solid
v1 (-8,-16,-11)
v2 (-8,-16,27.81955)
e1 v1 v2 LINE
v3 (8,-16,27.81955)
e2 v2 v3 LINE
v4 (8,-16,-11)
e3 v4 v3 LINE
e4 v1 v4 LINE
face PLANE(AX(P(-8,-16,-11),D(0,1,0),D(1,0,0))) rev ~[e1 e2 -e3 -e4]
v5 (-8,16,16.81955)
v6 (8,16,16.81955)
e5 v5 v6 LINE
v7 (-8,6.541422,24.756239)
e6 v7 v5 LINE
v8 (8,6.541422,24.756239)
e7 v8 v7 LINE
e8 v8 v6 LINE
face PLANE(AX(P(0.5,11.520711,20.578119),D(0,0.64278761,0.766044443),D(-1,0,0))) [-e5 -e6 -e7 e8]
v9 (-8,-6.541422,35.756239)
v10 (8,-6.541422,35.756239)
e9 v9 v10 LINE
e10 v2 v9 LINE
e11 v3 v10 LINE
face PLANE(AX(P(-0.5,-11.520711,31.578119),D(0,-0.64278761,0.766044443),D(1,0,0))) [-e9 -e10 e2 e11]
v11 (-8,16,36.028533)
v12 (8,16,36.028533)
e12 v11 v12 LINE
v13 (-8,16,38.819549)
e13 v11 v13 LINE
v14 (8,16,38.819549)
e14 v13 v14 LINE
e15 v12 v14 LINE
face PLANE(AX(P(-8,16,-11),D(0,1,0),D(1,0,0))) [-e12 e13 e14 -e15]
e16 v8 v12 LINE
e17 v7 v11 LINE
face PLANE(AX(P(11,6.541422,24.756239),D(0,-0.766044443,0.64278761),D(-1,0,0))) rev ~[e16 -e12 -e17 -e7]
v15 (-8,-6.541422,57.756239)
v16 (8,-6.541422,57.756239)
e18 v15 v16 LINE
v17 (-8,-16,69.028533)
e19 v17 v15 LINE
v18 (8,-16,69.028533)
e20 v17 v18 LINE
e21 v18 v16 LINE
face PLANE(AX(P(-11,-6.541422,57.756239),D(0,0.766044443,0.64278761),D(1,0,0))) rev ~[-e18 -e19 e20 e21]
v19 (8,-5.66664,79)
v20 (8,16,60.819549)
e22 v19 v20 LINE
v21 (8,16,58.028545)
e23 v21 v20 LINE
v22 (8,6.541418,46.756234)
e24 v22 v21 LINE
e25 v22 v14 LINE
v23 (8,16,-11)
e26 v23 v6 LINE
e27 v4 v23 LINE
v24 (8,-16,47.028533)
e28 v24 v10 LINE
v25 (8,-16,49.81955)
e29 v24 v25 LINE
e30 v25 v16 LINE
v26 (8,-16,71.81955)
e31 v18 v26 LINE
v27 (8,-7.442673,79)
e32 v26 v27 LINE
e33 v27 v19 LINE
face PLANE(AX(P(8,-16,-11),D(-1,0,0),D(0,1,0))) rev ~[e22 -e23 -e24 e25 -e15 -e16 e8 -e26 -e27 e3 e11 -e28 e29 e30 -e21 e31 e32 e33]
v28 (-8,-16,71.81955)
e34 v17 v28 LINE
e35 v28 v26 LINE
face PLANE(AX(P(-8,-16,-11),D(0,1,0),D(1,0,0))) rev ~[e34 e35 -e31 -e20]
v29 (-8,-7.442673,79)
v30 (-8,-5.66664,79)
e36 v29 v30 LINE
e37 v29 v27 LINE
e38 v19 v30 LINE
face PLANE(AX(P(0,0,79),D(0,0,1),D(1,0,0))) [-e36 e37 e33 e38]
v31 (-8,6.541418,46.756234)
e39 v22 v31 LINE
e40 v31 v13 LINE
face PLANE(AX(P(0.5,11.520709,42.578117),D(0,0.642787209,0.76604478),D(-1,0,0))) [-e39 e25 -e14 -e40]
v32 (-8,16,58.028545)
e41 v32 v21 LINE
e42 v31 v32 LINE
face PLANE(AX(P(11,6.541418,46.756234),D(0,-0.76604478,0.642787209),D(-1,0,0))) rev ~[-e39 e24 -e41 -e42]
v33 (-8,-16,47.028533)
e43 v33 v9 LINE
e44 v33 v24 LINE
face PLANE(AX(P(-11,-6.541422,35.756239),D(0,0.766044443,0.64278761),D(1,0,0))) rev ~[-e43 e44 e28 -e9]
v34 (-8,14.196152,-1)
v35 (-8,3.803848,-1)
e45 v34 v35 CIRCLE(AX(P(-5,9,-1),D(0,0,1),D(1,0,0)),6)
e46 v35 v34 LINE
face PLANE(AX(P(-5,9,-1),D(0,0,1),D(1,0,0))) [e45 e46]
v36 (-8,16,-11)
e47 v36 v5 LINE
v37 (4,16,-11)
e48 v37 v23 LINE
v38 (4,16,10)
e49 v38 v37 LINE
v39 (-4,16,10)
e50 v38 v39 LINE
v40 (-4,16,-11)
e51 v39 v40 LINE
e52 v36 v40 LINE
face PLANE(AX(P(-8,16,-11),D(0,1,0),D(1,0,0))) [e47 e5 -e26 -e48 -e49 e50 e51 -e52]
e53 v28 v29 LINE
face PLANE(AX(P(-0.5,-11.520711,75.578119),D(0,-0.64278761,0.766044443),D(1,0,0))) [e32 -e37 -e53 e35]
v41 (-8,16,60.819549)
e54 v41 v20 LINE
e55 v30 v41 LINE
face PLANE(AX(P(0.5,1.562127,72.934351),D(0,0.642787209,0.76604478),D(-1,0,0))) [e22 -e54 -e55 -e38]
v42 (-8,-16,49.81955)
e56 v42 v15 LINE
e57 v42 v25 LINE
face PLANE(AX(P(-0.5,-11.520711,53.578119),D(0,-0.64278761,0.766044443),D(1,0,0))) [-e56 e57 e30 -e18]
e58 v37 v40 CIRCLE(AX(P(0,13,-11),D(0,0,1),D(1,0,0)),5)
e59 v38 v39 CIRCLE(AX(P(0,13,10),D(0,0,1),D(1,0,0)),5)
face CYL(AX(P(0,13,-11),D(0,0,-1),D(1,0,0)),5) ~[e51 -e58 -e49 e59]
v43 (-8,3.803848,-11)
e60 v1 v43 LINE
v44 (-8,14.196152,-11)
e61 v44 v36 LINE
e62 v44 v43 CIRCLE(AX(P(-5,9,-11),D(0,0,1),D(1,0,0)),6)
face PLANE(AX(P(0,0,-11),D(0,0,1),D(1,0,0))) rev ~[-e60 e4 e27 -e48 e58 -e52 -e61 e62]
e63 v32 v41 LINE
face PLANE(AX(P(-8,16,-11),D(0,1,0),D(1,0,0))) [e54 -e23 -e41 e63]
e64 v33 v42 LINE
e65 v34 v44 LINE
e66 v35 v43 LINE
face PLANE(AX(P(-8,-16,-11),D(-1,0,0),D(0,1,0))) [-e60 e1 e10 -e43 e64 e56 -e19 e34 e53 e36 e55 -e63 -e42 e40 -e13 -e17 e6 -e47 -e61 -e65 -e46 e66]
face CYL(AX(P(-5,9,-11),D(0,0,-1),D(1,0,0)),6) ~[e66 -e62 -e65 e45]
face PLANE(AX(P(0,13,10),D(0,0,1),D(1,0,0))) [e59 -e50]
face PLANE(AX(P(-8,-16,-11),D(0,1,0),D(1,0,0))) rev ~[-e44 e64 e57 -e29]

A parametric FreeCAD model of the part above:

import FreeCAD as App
import Part
import Sketcher
from FreeCAD import Vector

doc = App.newDocument("Part")
body = doc.addObject("PartDesign::Body", "Body")

# Sketch on XY plane
sketch1 = doc.addObject("Sketcher::SketchObject", "Sketch")
body.addObject(sketch1)
sketch1.AttachmentSupport = (doc.XY_Plane, [""])
sketch1.MapMode = "FlatFace"
sketch1.AttachmentOffset = App.Placement(Vector(0, 0, -11), App.Rotation())
sketch1.addGeometry(Part.Circle(Vector(-5, 9, 0), Vector(0, 0, 1), 6), False)
sketch1.addConstraint(Sketcher.Constraint("Diameter", 0, 12.0))
sketch1.addConstraint(Sketcher.Constraint("DistanceX", 0, 3, -1, 1, 5.0))
sketch1.addConstraint(Sketcher.Constraint("DistanceY", -1, 1, 0, 3, 9.0))
pad1 = doc.addObject("PartDesign::Pad", "Pad")
body.addObject(pad1)
pad1.Profile = sketch1
pad1.Length = 10
body2 = doc.addObject("PartDesign::Body", "Body001")

# Sketch on XY plane
sketch2 = doc.addObject("Sketcher::SketchObject", "Sketch001")
body2.addObject(sketch2)
sketch2.AttachmentSupport = (doc.getObject("XY_Plane001"), [""])
sketch2.MapMode = "FlatFace"
sketch2.addGeometry(Part.LineSegment(Vector(0, 13, 0), Vector(0, 0, 0)), False)
sketch2.addGeometry(Part.LineSegment(Vector(0, 0, 0), Vector(21, 0, 0)), False)
sketch2.addGeometry(Part.LineSegment(Vector(21, 0, 0), Vector(21, 13, 0)), False)
sketch2.addGeometry(Part.LineSegment(Vector(21, 13, 0), Vector(0, 13, 0)), False)
sketch2.addConstraint(Sketcher.Constraint("Coincident", 0, 2, 1, 1))
sketch2.addConstraint(Sketcher.Constraint("Coincident", 1, 2, 2, 1))
sketch2.addConstraint(Sketcher.Constraint("Coincident", 2, 2, 3, 1))
sketch2.addConstraint(Sketcher.Constraint("Coincident", 3, 2, 0, 1))
sketch2.addConstraint(Sketcher.Constraint("Vertical", 0))
sketch2.addConstraint(Sketcher.Constraint("Horizontal", 1))
sketch2.addConstraint(Sketcher.Constraint("Vertical", 2))
sketch2.addConstraint(Sketcher.Constraint("Horizontal", 3))
sketch2.addConstraint(Sketcher.Constraint("Coincident", 0, 2, -1, 1))
sketch2.addConstraint(Sketcher.Constraint("DistanceX", 1, 1, 1, 2, 21.0))
sketch2.addConstraint(Sketcher.Constraint("DistanceY", 0, 2, 0, 1, 13.0))
pad2 = doc.addObject("PartDesign::Pad", "Pad001")
body2.addObject(pad2)
pad2.Profile = sketch2
pad2.Length = 30
body3 = doc.addObject("PartDesign::Body", "Body002")
doc.recompute()

body2.Placement = App.Placement(Vector(0, 0, 0), App.Rotation(Vector(1, 0, 0), 40))
boolean = doc.addObject("PartDesign::Boolean", "Boolean")
body3.addObject(boolean)
boolean.Type = "Fuse"
boolean.addObjects([body2])
body4 = doc.addObject("PartDesign::Body", "Body003")
doc.recompute()

body3.Placement = App.Placement(Vector(-11, -16.5, 27.4), App.Rotation(Vector(0, 0, 1), 0))
boolean2 = doc.addObject("PartDesign::Boolean", "Boolean001")
body4.addObject(boolean2)
boolean2.Type = "Fuse"
boolean2.addObjects([body3])
body5 = doc.addObject("PartDesign::Body", "Body004")

# Sketch on XY plane
sketch3 = doc.addObject("Sketcher::SketchObject", "Sketch002")
body5.addObject(sketch3)
sketch3.AttachmentSupport = (doc.getObject("XY_Plane004"), [""])
sketch3.MapMode = "FlatFace"
sketch3.addGeometry(Part.LineSegment(Vector(0, 13, 0), Vector(0, 0, 0)), False)
sketch3.addGeometry(Part.LineSegment(Vector(0, 0, 0), Vector(21, 0, 0)), False)
sketch3.addGeometry(Part.LineSegment(Vector(21, 0, 0), Vector(21, 13, 0)), False)
sketch3.addGeometry(Part.LineSegment(Vector(21, 13, 0), Vector(0, 13, 0)), False)
sketch3.addConstraint(Sketcher.Constraint("Coincident", 0, 2, 1, 1))
sketch3.addConstraint(Sketcher.Constraint("Coincident", 1, 2, 2, 1))
sketch3.addConstraint(Sketcher.Constraint("Coincident", 2, 2, 3, 1))
sketch3.addConstraint(Sketcher.Constraint("Coincident", 3, 2, 0, 1))
sketch3.addConstraint(Sketcher.Constraint("Vertical", 0))
sketch3.addConstraint(Sketcher.Constraint("Horizontal", 1))
sketch3.addConstraint(Sketcher.Constraint("Vertical", 2))
sketch3.addConstraint(Sketcher.Constraint("Horizontal", 3))
sketch3.addConstraint(Sketcher.Constraint("Coincident", 0, 2, -1, 1))
sketch3.addConstraint(Sketcher.Constraint("DistanceX", 1, 1, 1, 2, 21.0))
sketch3.addConstraint(Sketcher.Constraint("DistanceY", 0, 2, 0, 1, 13.0))
pad3 = doc.addObject("PartDesign::Pad", "Pad002")
body5.addObject(pad3)
pad3.Profile = sketch3
pad3.Length = 30
body6 = doc.addObject("PartDesign::Body", "Body005")
doc.recompute()

body5.Placement = App.Placement(Vector(0, 0, 0), App.Rotation(Vector(1, 0, 0), 39.99997))
boolean3 = doc.addObject("PartDesign::Boolean", "Boolean002")
body6.addObject(boolean3)
boolean3.Type = "Fuse"
boolean3.addObjects([body5])
body7 = doc.addObject("PartDesign::Body", "Body006")
doc.recompute()

body6.Placement = App.Placement(Vector(11, 16.5, 38.4), App.Rotation(Vector(0, 0, 1), 180))
boolean4 = doc.addObject("PartDesign::Boolean", "Boolean003")
body7.addObject(boolean4)
boolean4.Type = "Fuse"
boolean4.addObjects([body6])
body8 = doc.addObject("PartDesign::Body", "Body007")

# Sketch on XY plane
sketch4 = doc.addObject("Sketcher::SketchObject", "Sketch003")
body8.addObject(sketch4)
sketch4.AttachmentSupport = (doc.getObject("XY_Plane007"), [""])
sketch4.MapMode = "FlatFace"
sketch4.addGeometry(Part.LineSegment(Vector(0, 13, 0), Vector(0, 0, 0)), False)
sketch4.addGeometry(Part.LineSegment(Vector(0, 0, 0), Vector(21, 0, 0)), False)
sketch4.addGeometry(Part.LineSegment(Vector(21, 0, 0), Vector(21, 13, 0)), False)
sketch4.addGeometry(Part.LineSegment(Vector(21, 13, 0), Vector(0, 13, 0)), False)
sketch4.addConstraint(Sketcher.Constraint("Coincident", 0, 2, 1, 1))
sketch4.addConstraint(Sketcher.Constraint("Coincident", 1, 2, 2, 1))
sketch4.addConstraint(Sketcher.Constraint("Coincident", 2, 2, 3, 1))
sketch4.addConstraint(Sketcher.Constraint("Coincident", 3, 2, 0, 1))
sketch4.addConstraint(Sketcher.Constraint("Vertical", 0))
sketch4.addConstraint(Sketcher.Constraint("Horizontal", 1))
sketch4.addConstraint(Sketcher.Constraint("Vertical", 2))
sketch4.addConstraint(Sketcher.Constraint("Horizontal", 3))
sketch4.addConstraint(Sketcher.Constraint("Coincident", 0, 2, -1, 1))
sketch4.addConstraint(Sketcher.Constraint("DistanceX", 1, 1, 1, 2, 21.0))
sketch4.addConstraint(Sketcher.Constraint("DistanceY", 0, 2, 0, 1, 13.0))
pad4 = doc.addObject("PartDesign::Pad", "Pad003")
body8.addObject(pad4)
pad4.Profile = sketch4
pad4.Length = 30
body9 = doc.addObject("PartDesign::Body", "Body008")
doc.recompute()

body8.Placement = App.Placement(Vector(0, 0, 0), App.Rotation(Vector(1, 0, 0), 40))
boolean5 = doc.addObject("PartDesign::Boolean", "Boolean004")
body9.addObject(boolean5)
boolean5.Type = "Fuse"
boolean5.addObjects([body8])
body10 = doc.addObject("PartDesign::Body", "Body009")
doc.recompute()

body9.Placement = App.Placement(Vector(11, 16.5, 16.4), App.Rotation(Vector(0, 0, 1), 180))
boolean6 = doc.addObject("PartDesign::Boolean", "Boolean005")
body10.addObject(boolean6)
boolean6.Type = "Fuse"
boolean6.addObjects([body9])
body11 = doc.addObject("PartDesign::Body", "Body010")

# Sketch on XY plane
sketch5 = doc.addObject("Sketcher::SketchObject", "Sketch004")
body11.addObject(sketch5)
sketch5.AttachmentSupport = (doc.getObject("XY_Plane010"), [""])
sketch5.MapMode = "FlatFace"
sketch5.addGeometry(Part.LineSegment(Vector(0, 13, 0), Vector(0, 0, 0)), False)
sketch5.addGeometry(Part.LineSegment(Vector(0, 0, 0), Vector(21, 0, 0)), False)
sketch5.addGeometry(Part.LineSegment(Vector(21, 0, 0), Vector(21, 13, 0)), False)
sketch5.addGeometry(Part.LineSegment(Vector(21, 13, 0), Vector(0, 13, 0)), False)
sketch5.addConstraint(Sketcher.Constraint("Coincident", 0, 2, 1, 1))
sketch5.addConstraint(Sketcher.Constraint("Coincident", 1, 2, 2, 1))
sketch5.addConstraint(Sketcher.Constraint("Coincident", 2, 2, 3, 1))
sketch5.addConstraint(Sketcher.Constraint("Coincident", 3, 2, 0, 1))
sketch5.addConstraint(Sketcher.Constraint("Vertical", 0))
sketch5.addConstraint(Sketcher.Constraint("Horizontal", 1))
sketch5.addConstraint(Sketcher.Constraint("Vertical", 2))
sketch5.addConstraint(Sketcher.Constraint("Horizontal", 3))
sketch5.addConstraint(Sketcher.Constraint("Coincident", 0, 2, -1, 1))
sketch5.addConstraint(Sketcher.Constraint("DistanceX", 1, 1, 1, 2, 21.0))
sketch5.addConstraint(Sketcher.Constraint("DistanceY", 0, 2, 0, 1, 13.0))
pad5 = doc.addObject("PartDesign::Pad", "Pad004")
body11.addObject(pad5)
pad5.Profile = sketch5
pad5.Length = 30
body12 = doc.addObject("PartDesign::Body", "Body011")
doc.recompute()

body11.Placement = App.Placement(Vector(0, 0, 0), App.Rotation(Vector(1, 0, 0), 40))
boolean7 = doc.addObject("PartDesign::Boolean", "Boolean006")
body12.addObject(boolean7)
boolean7.Type = "Fuse"
boolean7.addObjects([body11])
body13 = doc.addObject("PartDesign::Body", "Body012")
doc.recompute()

body12.Placement = App.Placement(Vector(-11, -16.5, 49.4), App.Rotation(Vector(0, 0, 1), 0))
boolean8 = doc.addObject("PartDesign::Boolean", "Boolean007")
body13.addObject(boolean8)
boolean8.Type = "Fuse"
boolean8.addObjects([body12])
body14 = doc.addObject("PartDesign::Body", "Body013")

# Sketch on XY plane
sketch6 = doc.addObject("Sketcher::SketchObject", "Sketch005")
body14.addObject(sketch6)
sketch6.AttachmentSupport = (doc.getObject("XY_Plane013"), [""])
sketch6.MapMode = "FlatFace"
sketch6.addGeometry(Part.LineSegment(Vector(0, 13, 0), Vector(0, 0, 0)), False)
sketch6.addGeometry(Part.LineSegment(Vector(0, 0, 0), Vector(21, 0, 0)), False)
sketch6.addGeometry(Part.LineSegment(Vector(21, 0, 0), Vector(21, 13, 0)), False)
sketch6.addGeometry(Part.LineSegment(Vector(21, 13, 0), Vector(0, 13, 0)), False)
sketch6.addConstraint(Sketcher.Constraint("Coincident", 0, 2, 1, 1))
sketch6.addConstraint(Sketcher.Constraint("Coincident", 1, 2, 2, 1))
sketch6.addConstraint(Sketcher.Constraint("Coincident", 2, 2, 3, 1))
sketch6.addConstraint(Sketcher.Constraint("Coincident", 3, 2, 0, 1))
sketch6.addConstraint(Sketcher.Constraint("Vertical", 0))
sketch6.addConstraint(Sketcher.Constraint("Horizontal", 1))
sketch6.addConstraint(Sketcher.Constraint("Vertical", 2))
sketch6.addConstraint(Sketcher.Constraint("Horizontal", 3))
sketch6.addConstraint(Sketcher.Constraint("Coincident", 0, 2, -1, 1))
sketch6.addConstraint(Sketcher.Constraint("DistanceX", 1, 1, 1, 2, 21.0))
sketch6.addConstraint(Sketcher.Constraint("DistanceY", 0, 2, 0, 1, 13.0))
pad6 = doc.addObject("PartDesign::Pad", "Pad005")
body14.addObject(pad6)
pad6.Profile = sketch6
pad6.Length = 30
body15 = doc.addObject("PartDesign::Body", "Body014")
doc.recompute()

body14.Placement = App.Placement(Vector(0, 0, 0), App.Rotation(Vector(1, 0, 0), 40))
boolean9 = doc.addObject("PartDesign::Boolean", "Boolean008")
body15.addObject(boolean9)
boolean9.Type = "Fuse"
boolean9.addObjects([body14])
body16 = doc.addObject("PartDesign::Body", "Body015")
doc.recompute()

body15.Placement = App.Placement(Vector(-11, -16.5, 71.4), App.Rotation(Vector(0, 0, 1), 0))
boolean10 = doc.addObject("PartDesign::Boolean", "Boolean009")
body16.addObject(boolean10)
boolean10.Type = "Fuse"
boolean10.addObjects([body15])
body17 = doc.addObject("PartDesign::Body", "Body016")

# Sketch on XY plane
sketch7 = doc.addObject("Sketcher::SketchObject", "Sketch006")
body17.addObject(sketch7)
sketch7.AttachmentSupport = (doc.getObject("XY_Plane016"), [""])
sketch7.MapMode = "FlatFace"
sketch7.addGeometry(Part.LineSegment(Vector(0, 39, 0), Vector(0, 0, 0)), False)
sketch7.addGeometry(Part.LineSegment(Vector(0, 0, 0), Vector(21, 0, 0)), False)
sketch7.addGeometry(Part.LineSegment(Vector(21, 0, 0), Vector(21, 39, 0)), False)
sketch7.addGeometry(Part.LineSegment(Vector(21, 39, 0), Vector(0, 39, 0)), False)
sketch7.addConstraint(Sketcher.Constraint("Coincident", 0, 2, 1, 1))
sketch7.addConstraint(Sketcher.Constraint("Coincident", 1, 2, 2, 1))
sketch7.addConstraint(Sketcher.Constraint("Coincident", 2, 2, 3, 1))
sketch7.addConstraint(Sketcher.Constraint("Coincident", 3, 2, 0, 1))
sketch7.addConstraint(Sketcher.Constraint("Vertical", 0))
sketch7.addConstraint(Sketcher.Constraint("Horizontal", 1))
sketch7.addConstraint(Sketcher.Constraint("Vertical", 2))
sketch7.addConstraint(Sketcher.Constraint("Horizontal", 3))
sketch7.addConstraint(Sketcher.Constraint("Coincident", 0, 2, -1, 1))
sketch7.addConstraint(Sketcher.Constraint("DistanceX", 1, 1, 1, 2, 21.0))
sketch7.addConstraint(Sketcher.Constraint("DistanceY", 0, 2, 0, 1, 39.0))
pad7 = doc.addObject("PartDesign::Pad", "Pad006")
body17.addObject(pad7)
pad7.Profile = sketch7
pad7.Length = 30
body18 = doc.addObject("PartDesign::Body", "Body017")
doc.recompute()

body17.Placement = App.Placement(Vector(0, 0, 0), App.Rotation(Vector(1, 0, 0), 39.99997))
boolean11 = doc.addObject("PartDesign::Boolean", "Boolean010")
body18.addObject(boolean11)
boolean11.Type = "Fuse"
boolean11.addObjects([body17])
body19 = doc.addObject("PartDesign::Body", "Body018")
body19.AllowCompound = True
doc.recompute()

body18.Placement = App.Placement(Vector(11, 16.5, 60.4), App.Rotation(Vector(0, 0, 1), 180))
boolean12 = doc.addObject("PartDesign::Boolean", "Boolean011")
body19.addObject(boolean12)
boolean12.Type = "Fuse"
boolean12.addObjects([body18])
doc.recompute()

boolean13 = doc.addObject("PartDesign::Boolean", "Boolean012")
body19.addObject(boolean13)
boolean13.Type = "Fuse"
boolean13.addObjects([body4])
doc.recompute()

boolean14 = doc.addObject("PartDesign::Boolean", "Boolean013")
body19.addObject(boolean14)
boolean14.Type = "Fuse"
boolean14.addObjects([body7])
doc.recompute()

boolean15 = doc.addObject("PartDesign::Boolean", "Boolean014")
body19.addObject(boolean15)
boolean15.Type = "Fuse"
boolean15.addObjects([body10])
doc.recompute()

boolean16 = doc.addObject("PartDesign::Boolean", "Boolean015")
body19.addObject(boolean16)
boolean16.Type = "Fuse"
boolean16.addObjects([body13])
doc.recompute()

boolean17 = doc.addObject("PartDesign::Boolean", "Boolean016")
body19.addObject(boolean17)
boolean17.Type = "Fuse"
boolean17.addObjects([body16])
body20 = doc.addObject("PartDesign::Body", "Body019")

# Sketch on XY plane
sketch8 = doc.addObject("Sketcher::SketchObject", "Sketch007")
body20.addObject(sketch8)
sketch8.AttachmentSupport = (doc.getObject("XY_Plane019"), [""])
sketch8.MapMode = "FlatFace"
sketch8.AttachmentOffset = App.Placement(Vector(0, 0, -11), App.Rotation())
sketch8.addGeometry(Part.LineSegment(Vector(-8, 16, 0), Vector(-8, -16, 0)), False)
sketch8.addGeometry(Part.LineSegment(Vector(-8, -16, 0), Vector(8, -16, 0)), False)
sketch8.addGeometry(Part.LineSegment(Vector(8, -16, 0), Vector(8, 16, 0)), False)
sketch8.addGeometry(Part.LineSegment(Vector(8, 16, 0), Vector(-8, 16, 0)), False)
sketch8.addConstraint(Sketcher.Constraint("Coincident", 0, 2, 1, 1))
sketch8.addConstraint(Sketcher.Constraint("Coincident", 1, 2, 2, 1))
sketch8.addConstraint(Sketcher.Constraint("Coincident", 2, 2, 3, 1))
sketch8.addConstraint(Sketcher.Constraint("Coincident", 3, 2, 0, 1))
sketch8.addConstraint(Sketcher.Constraint("Vertical", 0))
sketch8.addConstraint(Sketcher.Constraint("Horizontal", 1))
sketch8.addConstraint(Sketcher.Constraint("Vertical", 2))
sketch8.addConstraint(Sketcher.Constraint("Horizontal", 3))
sketch8.addConstraint(Sketcher.Constraint("Symmetric", 0, 2, 2, 2, -1, 1))
sketch8.addConstraint(Sketcher.Constraint("DistanceX", 1, 1, 1, 2, 16.0))
sketch8.addConstraint(Sketcher.Constraint("DistanceY", 0, 2, 0, 1, 32.0))
pad8 = doc.addObject("PartDesign::Pad", "Pad007")
body20.addObject(pad8)
pad8.Profile = sketch8
pad8.Length = 90
doc.recompute()

boolean18 = doc.addObject("PartDesign::Boolean", "Boolean017")
body20.addObject(boolean18)
boolean18.Type = "Cut"
boolean18.addObjects([body19])
doc.recompute()

boolean19 = doc.addObject("PartDesign::Boolean", "Boolean018")
body20.addObject(boolean19)
boolean19.Type = "Fuse"
boolean19.addObjects([body])
body21 = doc.addObject("PartDesign::Body", "Body020")

# Sketch on XY plane
sketch9 = doc.addObject("Sketcher::SketchObject", "Sketch008")
body21.addObject(sketch9)
sketch9.AttachmentSupport = (doc.getObject("XY_Plane020"), [""])
sketch9.MapMode = "FlatFace"
sketch9.AttachmentOffset = App.Placement(Vector(0, 0, -11), App.Rotation())
sketch9.addGeometry(Part.Circle(Vector(0, 13, 0), Vector(0, 0, 1), 5), False)
sketch9.addConstraint(Sketcher.Constraint("PointOnObject", 0, 3, -2))
sketch9.addConstraint(Sketcher.Constraint("Diameter", 0, 10.0))
sketch9.addConstraint(Sketcher.Constraint("DistanceY", -1, 1, 0, 3, 13.0))
pad9 = doc.addObject("PartDesign::Pad", "Pad008")
body21.addObject(pad9)
pad9.Profile = sketch9
pad9.Length = 21
doc.recompute()

boolean20 = doc.addObject("PartDesign::Boolean", "Boolean019")
body21.addObject(boolean20)
boolean20.Type = "Fuse"
boolean20.addObjects([body20])

doc.recompute()
